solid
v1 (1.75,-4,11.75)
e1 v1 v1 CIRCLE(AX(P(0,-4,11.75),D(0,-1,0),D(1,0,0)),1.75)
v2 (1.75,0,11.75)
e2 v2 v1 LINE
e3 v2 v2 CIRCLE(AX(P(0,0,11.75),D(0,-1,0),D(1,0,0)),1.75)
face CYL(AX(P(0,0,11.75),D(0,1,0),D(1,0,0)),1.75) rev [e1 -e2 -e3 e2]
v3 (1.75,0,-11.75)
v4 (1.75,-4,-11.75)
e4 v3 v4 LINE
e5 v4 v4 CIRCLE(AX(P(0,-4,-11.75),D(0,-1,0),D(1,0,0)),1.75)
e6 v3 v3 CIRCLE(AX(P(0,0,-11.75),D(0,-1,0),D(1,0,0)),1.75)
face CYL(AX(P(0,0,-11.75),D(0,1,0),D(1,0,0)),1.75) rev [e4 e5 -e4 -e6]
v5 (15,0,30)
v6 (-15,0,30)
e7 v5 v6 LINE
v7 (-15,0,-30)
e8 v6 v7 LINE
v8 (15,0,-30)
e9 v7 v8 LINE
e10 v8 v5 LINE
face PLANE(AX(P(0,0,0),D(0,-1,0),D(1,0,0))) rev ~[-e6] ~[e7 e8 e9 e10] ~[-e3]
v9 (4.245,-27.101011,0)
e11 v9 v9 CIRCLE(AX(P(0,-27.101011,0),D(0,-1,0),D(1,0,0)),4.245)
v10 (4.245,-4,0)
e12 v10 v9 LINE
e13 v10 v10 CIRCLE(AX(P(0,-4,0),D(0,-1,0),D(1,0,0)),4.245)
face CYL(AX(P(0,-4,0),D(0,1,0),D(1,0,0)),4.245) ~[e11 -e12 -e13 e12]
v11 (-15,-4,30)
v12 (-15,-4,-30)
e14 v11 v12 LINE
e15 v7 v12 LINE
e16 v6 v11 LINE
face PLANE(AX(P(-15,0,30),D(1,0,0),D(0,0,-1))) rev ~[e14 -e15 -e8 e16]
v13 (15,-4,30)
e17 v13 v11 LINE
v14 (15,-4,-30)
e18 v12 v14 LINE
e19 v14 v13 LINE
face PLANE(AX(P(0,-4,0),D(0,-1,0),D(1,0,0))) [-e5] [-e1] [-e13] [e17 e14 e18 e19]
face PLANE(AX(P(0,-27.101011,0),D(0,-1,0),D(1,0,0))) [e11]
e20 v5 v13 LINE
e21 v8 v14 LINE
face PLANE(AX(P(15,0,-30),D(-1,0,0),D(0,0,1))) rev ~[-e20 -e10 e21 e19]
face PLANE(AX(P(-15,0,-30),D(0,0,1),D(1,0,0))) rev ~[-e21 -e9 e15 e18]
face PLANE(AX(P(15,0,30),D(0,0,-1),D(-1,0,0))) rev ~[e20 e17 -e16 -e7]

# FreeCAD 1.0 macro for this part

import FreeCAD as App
import Part
import Sketcher


def add_polygon(sketch, points):
    """Adds a closed chain of lines whose ends are joined by coincident constraints."""
    first, n = sketch.GeometryCount, len(points)
    for a, b in zip(points, points[1:] + points[:1]):
        sketch.addGeometry(Part.LineSegment(App.Vector(*a, 0), App.Vector(*b, 0)), False)
    for i in range(n):
        sketch.addConstraint(Sketcher.Constraint("Coincident", first + i, 2, first + (i + 1) % n, 1))

doc = App.newDocument("Part")
params = doc.addObject("Spreadsheet::Sheet", "Params")
for row, (alias, value) in enumerate([
    ("sketch1_diameter", "3.5 mm"),
    ("sketch1_width", "30 mm"),
    ("sketch1_height", "60 mm"),
    ("pad1_length", "4 mm"),
    ("sketch2_diameter", "8.49 mm"),
    ("pad2_length", "23.101011 mm"),
], start=1):
    params.set(f"A{row}", alias)
    params.set(f"B{row}", "=" + value)
    params.setAlias(f"B{row}", alias)

body = doc.addObject("PartDesign::Body", "Body")

# Sketch on XZ plane
sketch1 = doc.addObject("Sketcher::SketchObject", "Sketch")
body.addObject(sketch1)
sketch1.AttachmentSupport = (doc.XZ_Plane, [""])
sketch1.MapMode = "FlatFace"
add_polygon(sketch1, [(-15, 30), (-15, -30), (15, -30), (15, 30)])  # lines 0-3
sketch1.addGeometry(Part.Circle(App.Vector(0, -11.75, 0), App.Vector(0, 0, 1), 1.75), False)  # 4
sketch1.addGeometry(Part.Circle(App.Vector(0, 11.75, 0), App.Vector(0, 0, 1), 1.75), False)  # 5
sketch1.addConstraint(Sketcher.Constraint("Vertical", 0))
sketch1.addConstraint(Sketcher.Constraint("Horizontal", 1))
sketch1.addConstraint(Sketcher.Constraint("Vertical", 2))
sketch1.addConstraint(Sketcher.Constraint("Horizontal", 3))
sketch1.addConstraint(Sketcher.Constraint("Equal", 4, 5))
sketch1.addConstraint(Sketcher.Constraint("Symmetric", 4, 3, 5, 3, -1, 1))
sketch1.addConstraint(Sketcher.Constraint("Symmetric", 0, 2, 2, 2, -1, 1))
sketch1.addConstraint(Sketcher.Constraint("PointOnObject", 4, 3, -2))
sketch1.addConstraint(Sketcher.Constraint("Diameter", 4, 3.5))
sketch1.addConstraint(Sketcher.Constraint("DistanceX", 1, 1, 1, 2, 30.0))
sketch1.addConstraint(Sketcher.Constraint("DistanceY", 0, 2, 0, 1, 60.0))
sketch1.addConstraint(Sketcher.Constraint("DistanceY", 4, 3, 5, 3, 23.5))
sketch1.setExpression("Constraints[12]", "Params.sketch1_diameter")
sketch1.setExpression("Constraints[13]", "Params.sketch1_width")
sketch1.setExpression("Constraints[14]", "Params.sketch1_height")
pad1 = doc.addObject("PartDesign::Pad", "Pad")
body.addObject(pad1)
pad1.Profile = sketch1
pad1.setExpression("Length", "Params.pad1_length")

# Sketch on XZ plane
sketch2 = doc.addObject("Sketcher::SketchObject", "Sketch001")
body.addObject(sketch2)
sketch2.AttachmentSupport = (doc.XZ_Plane, [""])
sketch2.MapMode = "FlatFace"
sketch2.AttachmentOffset = App.Placement(App.Vector(0, 0, 4), App.Rotation())
sketch2.addGeometry(Part.Circle(App.Vector(0, 0, 0), App.Vector(0, 0, 1), 4.245), False)
sketch2.addConstraint(Sketcher.Constraint("Coincident", 0, 3, -1, 1))
sketch2.addConstraint(Sketcher.Constraint("Diameter", 0, 8.49))
sketch2.setExpression("Constraints[1]", "Params.sketch2_diameter")
pad2 = doc.addObject("PartDesign::Pad", "Pad001")
body.addObject(pad2)
pad2.Profile = sketch2
pad2.setExpression("Length", "Params.pad2_length")

doc.recompute()
